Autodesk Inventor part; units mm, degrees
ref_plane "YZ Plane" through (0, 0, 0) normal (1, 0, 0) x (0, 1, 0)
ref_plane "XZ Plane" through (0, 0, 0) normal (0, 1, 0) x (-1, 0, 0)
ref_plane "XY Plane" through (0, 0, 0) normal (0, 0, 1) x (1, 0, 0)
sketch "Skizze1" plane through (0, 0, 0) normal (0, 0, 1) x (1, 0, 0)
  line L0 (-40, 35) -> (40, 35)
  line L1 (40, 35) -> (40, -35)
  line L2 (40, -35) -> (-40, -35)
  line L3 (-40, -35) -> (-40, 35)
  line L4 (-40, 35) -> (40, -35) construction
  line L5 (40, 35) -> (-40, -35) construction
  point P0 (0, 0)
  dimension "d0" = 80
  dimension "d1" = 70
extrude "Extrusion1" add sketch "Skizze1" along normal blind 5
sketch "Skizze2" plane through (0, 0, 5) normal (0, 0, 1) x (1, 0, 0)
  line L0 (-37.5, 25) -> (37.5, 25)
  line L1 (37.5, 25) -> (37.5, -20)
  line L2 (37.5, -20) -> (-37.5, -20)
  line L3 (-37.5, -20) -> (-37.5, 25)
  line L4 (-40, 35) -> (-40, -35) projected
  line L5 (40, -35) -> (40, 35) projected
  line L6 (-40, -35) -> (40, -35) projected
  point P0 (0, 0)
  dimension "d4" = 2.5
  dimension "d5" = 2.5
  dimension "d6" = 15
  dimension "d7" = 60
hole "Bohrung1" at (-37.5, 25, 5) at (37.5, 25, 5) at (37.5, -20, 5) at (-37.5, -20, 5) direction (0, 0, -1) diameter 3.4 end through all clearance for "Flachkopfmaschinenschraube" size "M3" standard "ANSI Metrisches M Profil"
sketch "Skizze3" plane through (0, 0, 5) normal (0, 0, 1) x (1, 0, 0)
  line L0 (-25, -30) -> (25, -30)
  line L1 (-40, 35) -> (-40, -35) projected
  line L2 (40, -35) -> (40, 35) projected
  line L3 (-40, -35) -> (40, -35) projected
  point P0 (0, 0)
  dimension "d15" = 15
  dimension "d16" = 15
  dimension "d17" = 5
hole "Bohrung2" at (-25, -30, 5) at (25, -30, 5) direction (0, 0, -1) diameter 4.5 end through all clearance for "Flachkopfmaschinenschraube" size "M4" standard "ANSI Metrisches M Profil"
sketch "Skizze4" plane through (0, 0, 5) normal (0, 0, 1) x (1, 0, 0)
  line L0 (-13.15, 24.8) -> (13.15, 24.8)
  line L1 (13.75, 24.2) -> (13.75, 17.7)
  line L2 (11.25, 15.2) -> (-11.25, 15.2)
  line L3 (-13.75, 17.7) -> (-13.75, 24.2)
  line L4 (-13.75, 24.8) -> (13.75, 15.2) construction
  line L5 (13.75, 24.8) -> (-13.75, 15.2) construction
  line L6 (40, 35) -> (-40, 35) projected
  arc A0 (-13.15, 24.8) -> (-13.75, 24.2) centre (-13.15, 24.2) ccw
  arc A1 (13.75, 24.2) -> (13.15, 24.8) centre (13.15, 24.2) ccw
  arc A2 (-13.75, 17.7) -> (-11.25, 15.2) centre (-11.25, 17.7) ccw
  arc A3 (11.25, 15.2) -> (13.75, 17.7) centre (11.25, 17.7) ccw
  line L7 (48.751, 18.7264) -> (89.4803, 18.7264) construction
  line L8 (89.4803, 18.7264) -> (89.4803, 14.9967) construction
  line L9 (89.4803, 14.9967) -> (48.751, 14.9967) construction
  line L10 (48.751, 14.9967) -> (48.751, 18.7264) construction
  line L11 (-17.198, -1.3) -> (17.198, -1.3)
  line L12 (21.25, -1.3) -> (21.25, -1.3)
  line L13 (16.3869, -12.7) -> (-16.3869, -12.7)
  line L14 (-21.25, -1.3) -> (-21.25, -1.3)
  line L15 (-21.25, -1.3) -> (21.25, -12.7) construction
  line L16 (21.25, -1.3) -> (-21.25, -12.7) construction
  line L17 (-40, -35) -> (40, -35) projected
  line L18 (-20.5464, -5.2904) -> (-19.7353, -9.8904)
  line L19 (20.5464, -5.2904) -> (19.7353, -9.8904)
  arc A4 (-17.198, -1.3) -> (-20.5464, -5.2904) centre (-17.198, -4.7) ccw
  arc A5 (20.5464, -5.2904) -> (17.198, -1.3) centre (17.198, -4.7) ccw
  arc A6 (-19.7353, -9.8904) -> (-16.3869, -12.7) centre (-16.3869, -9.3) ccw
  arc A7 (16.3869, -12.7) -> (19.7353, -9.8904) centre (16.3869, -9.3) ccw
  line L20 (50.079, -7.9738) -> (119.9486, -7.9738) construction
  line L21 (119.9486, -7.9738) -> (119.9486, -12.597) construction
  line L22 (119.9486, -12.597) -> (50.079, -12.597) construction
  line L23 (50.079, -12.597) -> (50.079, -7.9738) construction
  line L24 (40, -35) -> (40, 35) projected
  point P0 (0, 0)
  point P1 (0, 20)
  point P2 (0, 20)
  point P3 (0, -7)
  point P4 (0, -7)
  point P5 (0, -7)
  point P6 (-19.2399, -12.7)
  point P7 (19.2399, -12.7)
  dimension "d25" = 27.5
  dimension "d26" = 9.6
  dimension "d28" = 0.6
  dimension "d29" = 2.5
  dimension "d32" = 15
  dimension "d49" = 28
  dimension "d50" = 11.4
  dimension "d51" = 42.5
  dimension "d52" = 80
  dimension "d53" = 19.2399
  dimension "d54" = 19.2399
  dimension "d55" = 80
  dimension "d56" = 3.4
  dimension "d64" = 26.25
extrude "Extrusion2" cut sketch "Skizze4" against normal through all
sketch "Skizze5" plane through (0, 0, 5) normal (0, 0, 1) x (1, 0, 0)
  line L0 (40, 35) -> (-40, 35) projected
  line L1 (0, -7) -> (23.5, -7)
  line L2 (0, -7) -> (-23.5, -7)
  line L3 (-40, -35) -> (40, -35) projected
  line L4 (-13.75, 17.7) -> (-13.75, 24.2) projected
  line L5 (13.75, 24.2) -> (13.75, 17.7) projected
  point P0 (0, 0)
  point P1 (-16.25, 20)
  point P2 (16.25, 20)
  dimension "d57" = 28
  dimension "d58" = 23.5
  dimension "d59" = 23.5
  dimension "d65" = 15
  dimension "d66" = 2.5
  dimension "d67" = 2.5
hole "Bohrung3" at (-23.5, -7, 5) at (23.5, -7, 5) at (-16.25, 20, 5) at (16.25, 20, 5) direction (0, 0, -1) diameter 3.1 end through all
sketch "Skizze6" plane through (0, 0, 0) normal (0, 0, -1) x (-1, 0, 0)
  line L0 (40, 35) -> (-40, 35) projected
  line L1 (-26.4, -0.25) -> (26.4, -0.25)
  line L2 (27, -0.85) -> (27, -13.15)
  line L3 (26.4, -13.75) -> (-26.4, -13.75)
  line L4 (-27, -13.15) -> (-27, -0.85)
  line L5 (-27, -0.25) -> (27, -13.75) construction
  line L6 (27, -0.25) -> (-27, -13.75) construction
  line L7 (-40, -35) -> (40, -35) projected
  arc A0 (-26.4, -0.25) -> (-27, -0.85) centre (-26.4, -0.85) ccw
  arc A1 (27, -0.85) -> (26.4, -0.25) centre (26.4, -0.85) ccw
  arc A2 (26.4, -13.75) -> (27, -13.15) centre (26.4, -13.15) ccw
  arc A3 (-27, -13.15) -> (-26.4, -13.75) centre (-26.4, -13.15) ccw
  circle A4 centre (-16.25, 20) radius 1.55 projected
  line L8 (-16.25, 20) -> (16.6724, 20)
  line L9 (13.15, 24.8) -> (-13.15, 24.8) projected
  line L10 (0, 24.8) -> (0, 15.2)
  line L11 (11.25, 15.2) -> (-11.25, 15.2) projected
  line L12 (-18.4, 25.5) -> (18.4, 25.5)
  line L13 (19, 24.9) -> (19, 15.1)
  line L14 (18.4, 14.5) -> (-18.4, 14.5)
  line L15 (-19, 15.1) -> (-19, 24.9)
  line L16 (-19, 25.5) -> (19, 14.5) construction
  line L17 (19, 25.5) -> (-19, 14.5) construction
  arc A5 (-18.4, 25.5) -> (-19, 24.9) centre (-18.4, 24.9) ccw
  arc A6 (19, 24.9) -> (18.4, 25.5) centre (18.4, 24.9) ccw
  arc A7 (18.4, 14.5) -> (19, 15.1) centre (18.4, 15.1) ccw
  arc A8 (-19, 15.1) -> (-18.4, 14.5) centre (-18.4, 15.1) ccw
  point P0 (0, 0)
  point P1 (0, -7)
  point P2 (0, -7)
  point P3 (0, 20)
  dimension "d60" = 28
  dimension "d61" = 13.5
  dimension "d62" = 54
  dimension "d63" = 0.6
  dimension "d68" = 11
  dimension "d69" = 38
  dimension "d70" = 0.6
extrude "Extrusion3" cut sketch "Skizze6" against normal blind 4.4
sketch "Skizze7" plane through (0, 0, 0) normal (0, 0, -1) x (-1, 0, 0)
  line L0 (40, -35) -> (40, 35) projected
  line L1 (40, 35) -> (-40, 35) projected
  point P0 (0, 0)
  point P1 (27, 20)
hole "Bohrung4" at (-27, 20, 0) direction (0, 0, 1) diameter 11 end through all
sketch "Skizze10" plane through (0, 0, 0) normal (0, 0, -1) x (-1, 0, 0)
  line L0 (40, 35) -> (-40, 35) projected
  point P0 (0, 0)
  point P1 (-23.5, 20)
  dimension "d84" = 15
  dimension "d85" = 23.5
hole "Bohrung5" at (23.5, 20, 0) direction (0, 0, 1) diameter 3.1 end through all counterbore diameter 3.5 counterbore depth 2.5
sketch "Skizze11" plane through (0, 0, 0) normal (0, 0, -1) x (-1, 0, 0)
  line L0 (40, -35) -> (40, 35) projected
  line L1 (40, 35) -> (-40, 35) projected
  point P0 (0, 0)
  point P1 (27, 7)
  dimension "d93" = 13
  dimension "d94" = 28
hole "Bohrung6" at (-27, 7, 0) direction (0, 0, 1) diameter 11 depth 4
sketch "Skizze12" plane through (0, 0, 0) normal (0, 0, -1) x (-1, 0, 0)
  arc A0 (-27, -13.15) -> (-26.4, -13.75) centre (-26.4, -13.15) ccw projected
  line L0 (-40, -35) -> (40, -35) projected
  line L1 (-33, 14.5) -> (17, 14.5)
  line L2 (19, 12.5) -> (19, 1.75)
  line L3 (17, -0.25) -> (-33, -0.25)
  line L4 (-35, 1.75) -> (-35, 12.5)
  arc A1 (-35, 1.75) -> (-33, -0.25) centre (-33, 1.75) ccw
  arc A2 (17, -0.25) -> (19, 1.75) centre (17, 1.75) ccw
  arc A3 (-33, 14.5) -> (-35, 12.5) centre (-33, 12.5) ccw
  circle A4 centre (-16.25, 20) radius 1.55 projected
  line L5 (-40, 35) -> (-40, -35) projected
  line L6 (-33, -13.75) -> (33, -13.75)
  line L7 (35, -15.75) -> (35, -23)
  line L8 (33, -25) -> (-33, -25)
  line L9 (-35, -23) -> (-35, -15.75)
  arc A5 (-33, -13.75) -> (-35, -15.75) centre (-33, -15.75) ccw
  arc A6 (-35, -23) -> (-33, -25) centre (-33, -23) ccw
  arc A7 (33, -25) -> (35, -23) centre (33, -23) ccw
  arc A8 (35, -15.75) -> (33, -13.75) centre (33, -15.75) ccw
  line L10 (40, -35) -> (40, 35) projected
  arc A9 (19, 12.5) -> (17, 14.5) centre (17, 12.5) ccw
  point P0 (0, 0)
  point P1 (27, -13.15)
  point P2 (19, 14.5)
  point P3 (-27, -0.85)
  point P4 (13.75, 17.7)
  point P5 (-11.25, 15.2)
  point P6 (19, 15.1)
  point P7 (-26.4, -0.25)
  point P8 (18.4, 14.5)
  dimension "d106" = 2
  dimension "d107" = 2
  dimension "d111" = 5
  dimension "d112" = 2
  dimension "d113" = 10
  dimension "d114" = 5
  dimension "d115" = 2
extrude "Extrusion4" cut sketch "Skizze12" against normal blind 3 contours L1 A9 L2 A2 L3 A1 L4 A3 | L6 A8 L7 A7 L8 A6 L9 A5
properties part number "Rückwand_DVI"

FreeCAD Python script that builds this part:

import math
import FreeCAD as App
import Part
import Sketcher

V = App.Vector
Q = App.Units.Quantity

doc = App.newDocument("Part")
params = doc.addObject("Spreadsheet::Sheet", "Params")
for row, (alias, value) in enumerate([
    ("sketch1_width", "80 mm"),
    ("sketch1_height", "70 mm"),
    ("pad1_length", "5 mm"),
    ("sketch2_diameter", "3.4 mm"),
    ("hole_diameter", "3.4 mm"),
    ("sketch3_diameter", "4.5 mm"),
    ("hole2_diameter", "4.5 mm"),
    ("sketch4_radius", "0.6 mm"),
    ("sketch4_radius2", "2.5 mm"),
    ("sketch4_radius3", "3.4 mm"),
    ("sketch4_width", "26.3 mm"),
    ("sketch5_diameter", "3.1 mm"),
    ("hole3_diameter", "3.1 mm"),
    ("sketch6_radius", "0.6 mm"),
    ("sketch6_diameter", "3.1 mm"),
    ("sketch6_width", "52.8 mm"),
    ("sketch6_width2", "36.8 mm"),
    ("pocket2_length", "4.4 mm"),
    ("sketch7_diameter", "11 mm"),
    ("hole4_diameter", "11 mm"),
    ("sketch8_diameter", "3.1 mm"),
    ("hole5_diameter", "3.1 mm"),
    ("hole5_cbore_diameter", "3.5 mm"),
    ("hole5_cbore_depth", "2.5 mm"),
    ("sketch9_diameter", "11 mm"),
    ("hole6_diameter", "11 mm"),
    ("hole6_depth", "4 mm"),
    ("sketch10_radius", "2 mm"),
    ("sketch10_width", "50 mm"),
    ("sketch10_width2", "66 mm"),
    ("sketch10_height", "10.75 mm"),
    ("sketch10_height2", "7.25 mm"),
    ("pocket3_length", "3 mm"),
], start=1):
    params.set(f"A{row}", alias)
    params.set(f"B{row}", "=" + value)
    params.setAlias(f"B{row}", alias)

body = doc.addObject("PartDesign::Body", "Body")

sketch1 = body.newObject("Sketcher::SketchObject", "Sketch")
sketch1.AttachmentSupport = (doc.getObject("XY_Plane"), [""])
sketch1.MapMode = "FlatFace"
sketch1.addGeometry(Part.LineSegment(V(40, 35, 0), V(-40, 35, 0)), False)
sketch1.addGeometry(Part.LineSegment(V(-40, 35, 0), V(-40, -35, 0)), False)
sketch1.addGeometry(Part.LineSegment(V(-40, -35, 0), V(40, -35, 0)), False)
sketch1.addGeometry(Part.LineSegment(V(40, -35, 0), V(40, 35, 0)), False)
sketch1.addConstraint(Sketcher.Constraint("Coincident", 0, 2, 1, 1))
sketch1.addConstraint(Sketcher.Constraint("Coincident", 1, 2, 2, 1))
sketch1.addConstraint(Sketcher.Constraint("Coincident", 2, 2, 3, 1))
sketch1.addConstraint(Sketcher.Constraint("Coincident", 3, 2, 0, 1))
sketch1.addConstraint(Sketcher.Constraint("Horizontal", 0))
sketch1.addConstraint(Sketcher.Constraint("Vertical", 1))
sketch1.addConstraint(Sketcher.Constraint("Horizontal", 2))
sketch1.addConstraint(Sketcher.Constraint("Vertical", 3))
sketch1.addConstraint(Sketcher.Constraint("Symmetric", 0, 2, 2, 2, -1, 1))
sketch1.addConstraint(Sketcher.Constraint("DistanceX", 0, 2, 0, 1, Q("80 mm")))
sketch1.addConstraint(Sketcher.Constraint("DistanceY", 1, 2, 1, 1, Q("70 mm")))
sketch1.setExpression("Constraints[9]", "Params.sketch1_width")
sketch1.setExpression("Constraints[10]", "Params.sketch1_height")
pad1 = body.newObject("PartDesign::Pad", "Pad")
pad1.Profile = sketch1
pad1.setExpression("Length", "Params.pad1_length")

sketch2 = body.newObject("Sketcher::SketchObject", "Sketch001")
sketch2.AttachmentSupport = (doc.getObject("XY_Plane"), [""])
sketch2.MapMode = "FlatFace"
sketch2.AttachmentOffset = App.Placement(V(0, 0, 5), App.Rotation())
sketch2.addGeometry(Part.Circle(V(-37.5, 25, 0), V(0, 0, 1), 1.7), False)
sketch2.addGeometry(Part.Circle(V(37.5, 25, 0), V(0, 0, 1), 1.7), False)
sketch2.addGeometry(Part.Circle(V(37.5, -20, 0), V(0, 0, 1), 1.7), False)
sketch2.addGeometry(Part.Circle(V(-37.5, -20, 0), V(0, 0, 1), 1.7), False)
sketch2.addConstraint(Sketcher.Constraint("Equal", 0, 1))
sketch2.addConstraint(Sketcher.Constraint("Equal", 1, 2))
sketch2.addConstraint(Sketcher.Constraint("Equal", 2, 3))
sketch2.addConstraint(Sketcher.Constraint("Symmetric", 0, 3, 1, 3, -2))
sketch2.addConstraint(Sketcher.Constraint("Symmetric", 2, 3, 3, 3, -2))
sketch2.addConstraint(Sketcher.Constraint("Vertical", 1, 3, 2, 3))
sketch2.addConstraint(Sketcher.Constraint("Diameter", 0, Q("3.4 mm")))
sketch2.addConstraint(Sketcher.Constraint("DistanceY", -1, 1, 0, 3, Q("25 mm")))
sketch2.addConstraint(Sketcher.Constraint("DistanceY", 2, 3, -1, 1, Q("20 mm")))
sketch2.addConstraint(Sketcher.Constraint("DistanceX", 0, 3, 1, 3, Q("75 mm")))
sketch2.setExpression("Constraints[6]", "Params.sketch2_diameter")
doc.recompute()
hole = body.newObject("PartDesign::Hole", "Hole")
hole.Profile = sketch2
hole.ThreadType = "None"
hole.setExpression("Diameter", "Params.hole_diameter")
hole.DepthType = "ThroughAll"

sketch3 = body.newObject("Sketcher::SketchObject", "Sketch002")
sketch3.AttachmentSupport = (doc.getObject("XY_Plane"), [""])
sketch3.MapMode = "FlatFace"
sketch3.AttachmentOffset = App.Placement(V(0, 0, 5), App.Rotation())
sketch3.addGeometry(Part.Circle(V(-25, -30, 0), V(0, 0, 1), 2.2), False)
sketch3.addGeometry(Part.Circle(V(25, -30, 0), V(0, 0, 1), 2.2), False)
sketch3.addConstraint(Sketcher.Constraint("Equal", 0, 1))
sketch3.addConstraint(Sketcher.Constraint("Symmetric", 0, 3, 1, 3, -2))
sketch3.addConstraint(Sketcher.Constraint("Diameter", 0, Q("4.5 mm")))
sketch3.addConstraint(Sketcher.Constraint("DistanceX", 0, 3, -1, 1, Q("25 mm")))
sketch3.addConstraint(Sketcher.Constraint("DistanceY", 0, 3, -1, 1, Q("30 mm")))
sketch3.setExpression("Constraints[2]", "Params.sketch3_diameter")
doc.recompute()
hole2 = body.newObject("PartDesign::Hole", "Hole001")
hole2.Profile = sketch3
hole2.ThreadType = "None"
hole2.setExpression("Diameter", "Params.hole2_diameter")
hole2.DepthType = "ThroughAll"

sketch4 = body.newObject("Sketcher::SketchObject", "Sketch003")
sketch4.AttachmentSupport = (doc.getObject("XY_Plane"), [""])
sketch4.MapMode = "FlatFace"
sketch4.AttachmentOffset = App.Placement(V(0, 0, 5), App.Rotation())
sketch4.addGeometry(Part.LineSegment(V(13.2, 24.8, 0), V(-13.2, 24.8, 0)), False)
sketch4.addGeometry(Part.ArcOfCircle(Part.Circle(V(-13.2, 24.2, 0), V(0, 0, 1), 0.6), math.radians(90), math.radians(180)), False)
sketch4.addGeometry(Part.LineSegment(V(-13.8, 24.2, 0), V(-13.8, 17.7, 0)), False)
sketch4.addGeometry(Part.ArcOfCircle(Part.Circle(V(-11.2, 17.7, 0), V(0, 0, 1), 2.5), math.radians(180), math.radians(270)), False)
sketch4.addGeometry(Part.LineSegment(V(-11.2, 15.2, 0), V(11.2, 15.2, 0)), False)
sketch4.addGeometry(Part.ArcOfCircle(Part.Circle(V(11.2, 17.7, 0), V(0, 0, 1), 2.5), math.radians(-90), math.radians(0)), False)
sketch4.addGeometry(Part.LineSegment(V(13.8, 17.7, 0), V(13.8, 24.2, 0)), False)
sketch4.addGeometry(Part.ArcOfCircle(Part.Circle(V(13.2, 24.2, 0), V(0, 0, 1), 0.6), math.radians(0), math.radians(90)), False)
sketch4.addGeometry(Part.LineSegment(V(17.2, -1.3, 0), V(-17.2, -1.3, 0)), False)
sketch4.addGeometry(Part.ArcOfCircle(Part.Circle(V(-17.2, -4.7, 0), V(0, 0, 1), 3.4), math.radians(90), math.radians(190)), False)
sketch4.addGeometry(Part.LineSegment(V(-20.5, -5.3, 0), V(-19.7, -9.9, 0)), False)
sketch4.addGeometry(Part.ArcOfCircle(Part.Circle(V(-16.4, -9.3, 0), V(0, 0, 1), 3.4), math.radians(-170), math.radians(-90)), False)
sketch4.addGeometry(Part.LineSegment(V(-16.4, -12.7, 0), V(16.4, -12.7, 0)), False)
sketch4.addGeometry(Part.ArcOfCircle(Part.Circle(V(16.4, -9.3, 0), V(0, 0, 1), 3.4), math.radians(-90), math.radians(-10)), False)
sketch4.addGeometry(Part.LineSegment(V(19.7, -9.9, 0), V(20.5, -5.3, 0)), False)
sketch4.addGeometry(Part.ArcOfCircle(Part.Circle(V(17.2, -4.7, 0), V(0, 0, 1), 3.4), math.radians(-10), math.radians(90)), False)
sketch4.addConstraint(Sketcher.Constraint("Tangent", 0, 2, 1, 1))
sketch4.addConstraint(Sketcher.Constraint("Tangent", 1, 2, 2, 1))
sketch4.addConstraint(Sketcher.Constraint("Tangent", 2, 2, 3, 1))
sketch4.addConstraint(Sketcher.Constraint("Tangent", 3, 2, 4, 1))
sketch4.addConstraint(Sketcher.Constraint("Tangent", 4, 2, 5, 1))
sketch4.addConstraint(Sketcher.Constraint("Tangent", 5, 2, 6, 1))
sketch4.addConstraint(Sketcher.Constraint("Tangent", 6, 2, 7, 1))
sketch4.addConstraint(Sketcher.Constraint("Tangent", 7, 2, 0, 1))
sketch4.addConstraint(Sketcher.Constraint("Tangent", 8, 2, 9, 1))
sketch4.addConstraint(Sketcher.Constraint("Tangent", 9, 2, 10, 1))
sketch4.addConstraint(Sketcher.Constraint("Tangent", 10, 2, 11, 1))
sketch4.addConstraint(Sketcher.Constraint("Tangent", 11, 2, 12, 1))
sketch4.addConstraint(Sketcher.Constraint("Tangent", 12, 2, 13, 1))
sketch4.addConstraint(Sketcher.Constraint("Tangent", 13, 2, 14, 1))
sketch4.addConstraint(Sketcher.Constraint("Tangent", 14, 2, 15, 1))
sketch4.addConstraint(Sketcher.Constraint("Tangent", 15, 2, 8, 1))
sketch4.addConstraint(Sketcher.Constraint("Horizontal", 0))
sketch4.addConstraint(Sketcher.Constraint("Vertical", 2))
sketch4.addConstraint(Sketcher.Constraint("Horizontal", 4))
sketch4.addConstraint(Sketcher.Constraint("Vertical", 6))
sketch4.addConstraint(Sketcher.Constraint("Horizontal", 8))
sketch4.addConstraint(Sketcher.Constraint("Horizontal", 12))
sketch4.addConstraint(Sketcher.Constraint("Equal", 3, 5))
sketch4.addConstraint(Sketcher.Constraint("Equal", 1, 7))
sketch4.addConstraint(Sketcher.Constraint("Equal", 9, 11))
sketch4.addConstraint(Sketcher.Constraint("Equal", 11, 13))
sketch4.addConstraint(Sketcher.Constraint("Equal", 13, 15))
sketch4.addConstraint(Sketcher.Constraint("Symmetric", 10, 2, 13, 2, -2))
sketch4.addConstraint(Sketcher.Constraint("Radius", 1, Q("0.6 mm")))
sketch4.addConstraint(Sketcher.Constraint("Radius", 3, Q("2.5 mm")))
sketch4.addConstraint(Sketcher.Constraint("Radius", 9, Q("3.4 mm")))
sketch4.addConstraint(Sketcher.Constraint("Angle", 10, Q("-80 deg")))
sketch4.addConstraint(Sketcher.Constraint("DistanceY", 3, 2, 0, 2, Q("9.6 mm")))
sketch4.addConstraint(Sketcher.Constraint("DistanceY", 11, 2, 8, 2, Q("11.4 mm")))
sketch4.addConstraint(Sketcher.Constraint("DistanceX", 0, 2, 0, 1, Q("26.3 mm")))
sketch4.addConstraint(Sketcher.Constraint("DistanceY", 11, 3, 3, 3, Q("27 mm")))
sketch4.addConstraint(Sketcher.Constraint("DistanceY", -1, 1, 1, 3, Q("24.2 mm")))
sketch4.addConstraint(Sketcher.Constraint("DistanceX", 8, 2, 8, 1, Q("34.396 mm")))
sketch4.addConstraint(Sketcher.Constraint("DistanceX", 1, 3, -1, 1, Q("13.15 mm")))
sketch4.setExpression("Constraints[28]", "Params.sketch4_radius")
sketch4.setExpression("Constraints[29]", "Params.sketch4_radius2")
sketch4.setExpression("Constraints[30]", "Params.sketch4_radius3")
sketch4.setExpression("Constraints[34]", "Params.sketch4_width")
pocket1 = body.newObject("PartDesign::Pocket", "Pocket")
pocket1.Profile = sketch4
pocket1.Type = "ThroughAll"

sketch5 = body.newObject("Sketcher::SketchObject", "Sketch004")
sketch5.AttachmentSupport = (doc.getObject("XY_Plane"), [""])
sketch5.MapMode = "FlatFace"
sketch5.AttachmentOffset = App.Placement(V(0, 0, 5), App.Rotation())
sketch5.addGeometry(Part.Circle(V(-23.5, -7, 0), V(0, 0, 1), 1.6), False)
sketch5.addGeometry(Part.Circle(V(23.5, -7, 0), V(0, 0, 1), 1.6), False)
sketch5.addGeometry(Part.Circle(V(-16.2, 20, 0), V(0, 0, 1), 1.6), False)
sketch5.addGeometry(Part.Circle(V(16.2, 20, 0), V(0, 0, 1), 1.6), False)
sketch5.addConstraint(Sketcher.Constraint("Equal", 0, 1))
sketch5.addConstraint(Sketcher.Constraint("Equal", 1, 2))
sketch5.addConstraint(Sketcher.Constraint("Equal", 2, 3))
sketch5.addConstraint(Sketcher.Constraint("Symmetric", 0, 3, 1, 3, -2))
sketch5.addConstraint(Sketcher.Constraint("Symmetric", 2, 3, 3, 3, -2))
sketch5.addConstraint(Sketcher.Constraint("Diameter", 0, Q("3.1 mm")))
sketch5.addConstraint(Sketcher.Constraint("DistanceY", 0, 3, -1, 1, Q("7 mm")))
sketch5.addConstraint(Sketcher.Constraint("DistanceY", -1, 1, 2, 3, Q("20 mm")))
sketch5.addConstraint(Sketcher.Constraint("DistanceX", 0, 3, 1, 3, Q("47 mm")))
sketch5.addConstraint(Sketcher.Constraint("DistanceX", 2, 3, 3, 3, Q("32.5 mm")))
sketch5.setExpression("Constraints[5]", "Params.sketch5_diameter")
doc.recompute()
hole3 = body.newObject("PartDesign::Hole", "Hole002")
hole3.Profile = sketch5
hole3.ThreadType = "None"
hole3.setExpression("Diameter", "Params.hole3_diameter")
hole3.DepthType = "ThroughAll"

sketch6 = body.newObject("Sketcher::SketchObject", "Sketch005")
sketch6.AttachmentSupport = (doc.getObject("XY_Plane"), [""])
sketch6.MapMode = "FlatFace"
sketch6.addGeometry(Part.LineSegment(V(-26.4, -0.2, 0), V(26.4, -0.2, 0)), False)
sketch6.addGeometry(Part.ArcOfCircle(Part.Circle(V(26.4, -0.8, 0), V(0, 0, 1), 0.6), math.radians(0), math.radians(90)), False)
sketch6.addGeometry(Part.LineSegment(V(27, -0.8, 0), V(27, -13.2, 0)), False)
sketch6.addGeometry(Part.ArcOfCircle(Part.Circle(V(26.4, -13.2, 0), V(0, 0, 1), 0.6), math.radians(-90), math.radians(0)), False)
sketch6.addGeometry(Part.LineSegment(V(26.4, -13.8, 0), V(-26.4, -13.8, 0)), False)
sketch6.addGeometry(Part.ArcOfCircle(Part.Circle(V(-26.4, -13.2, 0), V(0, 0, 1), 0.6), math.radians(180), math.radians(270)), False)
sketch6.addGeometry(Part.LineSegment(V(-27, -13.2, 0), V(-27, -0.8, 0)), False)
sketch6.addGeometry(Part.ArcOfCircle(Part.Circle(V(-26.4, -0.8, 0), V(0, 0, 1), 0.6), math.radians(90), math.radians(180)), False)
sketch6.addGeometry(Part.LineSegment(V(-18.4, 25.5, 0), V(18.4, 25.5, 0)), False)
sketch6.addGeometry(Part.ArcOfCircle(Part.Circle(V(18.4, 24.9, 0), V(0, 0, 1), 0.6), math.radians(0), math.radians(90)), False)
sketch6.addGeometry(Part.LineSegment(V(19, 24.9, 0), V(19, 15.1, 0)), False)
sketch6.addGeometry(Part.ArcOfCircle(Part.Circle(V(18.4, 15.1, 0), V(0, 0, 1), 0.6), math.radians(-90), math.radians(0)), False)
sketch6.addGeometry(Part.LineSegment(V(18.4, 14.5, 0), V(-18.4, 14.5, 0)), False)
sketch6.addGeometry(Part.ArcOfCircle(Part.Circle(V(-18.4, 15.1, 0), V(0, 0, 1), 0.6), math.radians(180), math.radians(270)), False)
sketch6.addGeometry(Part.LineSegment(V(-19, 15.1, 0), V(-19, 24.9, 0)), False)
sketch6.addGeometry(Part.ArcOfCircle(Part.Circle(V(-18.4, 24.9, 0), V(0, 0, 1), 0.6), math.radians(90), math.radians(180)), False)
sketch6.addGeometry(Part.Circle(V(16.2, 20, 0), V(0, 0, 1), 1.6), False)
sketch6.addConstraint(Sketcher.Constraint("Tangent", 0, 2, 1, 2))
sketch6.addConstraint(Sketcher.Constraint("Tangent", 1, 1, 2, 1))
sketch6.addConstraint(Sketcher.Constraint("Tangent", 2, 2, 3, 2))
sketch6.addConstraint(Sketcher.Constraint("Tangent", 3, 1, 4, 1))
sketch6.addConstraint(Sketcher.Constraint("Tangent", 4, 2, 5, 2))
sketch6.addConstraint(Sketcher.Constraint("Tangent", 5, 1, 6, 1))
sketch6.addConstraint(Sketcher.Constraint("Tangent", 6, 2, 7, 2))
sketch6.addConstraint(Sketcher.Constraint("Tangent", 7, 1, 0, 1))
sketch6.addConstraint(Sketcher.Constraint("Tangent", 8, 2, 9, 2))
sketch6.addConstraint(Sketcher.Constraint("Tangent", 9, 1, 10, 1))
sketch6.addConstraint(Sketcher.Constraint("Tangent", 10, 2, 11, 2))
sketch6.addConstraint(Sketcher.Constraint("Tangent", 11, 1, 12, 1))
sketch6.addConstraint(Sketcher.Constraint("Tangent", 12, 2, 13, 2))
sketch6.addConstraint(Sketcher.Constraint("Tangent", 13, 1, 14, 1))
sketch6.addConstraint(Sketcher.Constraint("Tangent", 14, 2, 15, 2))
sketch6.addConstraint(Sketcher.Constraint("Tangent", 15, 1, 8, 1))
sketch6.addConstraint(Sketcher.Constraint("Horizontal", 0))
sketch6.addConstraint(Sketcher.Constraint("Vertical", 2))
sketch6.addConstraint(Sketcher.Constraint("Horizontal", 4))
sketch6.addConstraint(Sketcher.Constraint("Vertical", 6))
sketch6.addConstraint(Sketcher.Constraint("Horizontal", 8))
sketch6.addConstraint(Sketcher.Constraint("Vertical", 10))
sketch6.addConstraint(Sketcher.Constraint("Horizontal", 12))
sketch6.addConstraint(Sketcher.Constraint("Vertical", 14))
sketch6.addConstraint(Sketcher.Constraint("Equal", 1, 3))
sketch6.addConstraint(Sketcher.Constraint("Equal", 3, 5))
sketch6.addConstraint(Sketcher.Constraint("Equal", 5, 7))
sketch6.addConstraint(Sketcher.Constraint("Equal", 7, 9))
sketch6.addConstraint(Sketcher.Constraint("Equal", 9, 11))
sketch6.addConstraint(Sketcher.Constraint("Equal", 11, 13))
sketch6.addConstraint(Sketcher.Constraint("Equal", 13, 15))
sketch6.addConstraint(Sketcher.Constraint("Radius", 1, Q("0.6 mm")))
sketch6.addConstraint(Sketcher.Constraint("DistanceY", 12, 2, 15, 1, Q("11 mm")))
sketch6.addConstraint(Sketcher.Constraint("Diameter", 16, Q("3.1 mm")))
sketch6.addConstraint(Sketcher.Constraint("DistanceY", 3, 1, 0, 2, Q("13.5 mm")))
sketch6.addConstraint(Sketcher.Constraint("DistanceX", 0, 1, 0, 2, Q("52.8 mm")))
sketch6.addConstraint(Sketcher.Constraint("DistanceX", 8, 1, 8, 2, Q("36.8 mm")))
sketch6.addConstraint(Sketcher.Constraint("DistanceY", -1, 1, 16, 3, Q("20 mm")))
sketch6.addConstraint(Sketcher.Constraint("DistanceX", -1, 1, 1, 1, Q("27 mm")))
sketch6.addConstraint(Sketcher.Constraint("DistanceX", -1, 1, 9, 1, Q("19 mm")))
sketch6.addConstraint(Sketcher.Constraint("DistanceY", -1, 1, 9, 3, Q("24.9 mm")))
sketch6.addConstraint(Sketcher.Constraint("DistanceY", 1, 3, -1, 1, Q("0.85 mm")))
sketch6.addConstraint(Sketcher.Constraint("DistanceX", -1, 1, 16, 3, Q("16.25 mm")))
sketch6.setExpression("Constraints[31]", "Params.sketch6_radius")
sketch6.setExpression("Constraints[33]", "Params.sketch6_diameter")
sketch6.setExpression("Constraints[35]", "Params.sketch6_width")
sketch6.setExpression("Constraints[36]", "Params.sketch6_width2")
pocket2 = body.newObject("PartDesign::Pocket", "Pocket001")
pocket2.Profile = sketch6
pocket2.setExpression("Length", "Params.pocket2_length")
pocket2.Reversed = True

sketch7 = body.newObject("Sketcher::SketchObject", "Sketch006")
sketch7.AttachmentSupport = (doc.getObject("XY_Plane"), [""])
sketch7.MapMode = "FlatFace"
sketch7.addGeometry(Part.Circle(V(-27, 20, 0), V(0, 0, 1), 6), False)
sketch7.addConstraint(Sketcher.Constraint("Diameter", 0, Q("11 mm")))
sketch7.addConstraint(Sketcher.Constraint("DistanceX", 0, 3, -1, 1, Q("27 mm")))
sketch7.addConstraint(Sketcher.Constraint("DistanceY", -1, 1, 0, 3, Q("20 mm")))
sketch7.setExpression("Constraints[0]", "Params.sketch7_diameter")
doc.recompute()
hole4 = body.newObject("PartDesign::Hole", "Hole003")
hole4.Profile = sketch7
hole4.ThreadType = "None"
hole4.setExpression("Diameter", "Params.hole4_diameter")
hole4.DepthType = "ThroughAll"
hole4.Reversed = True

sketch8 = body.newObject("Sketcher::SketchObject", "Sketch007")
sketch8.AttachmentSupport = (doc.getObject("XY_Plane"), [""])
sketch8.MapMode = "FlatFace"
sketch8.addGeometry(Part.Circle(V(23.5, 20, 0), V(0, 0, 1), 1.6), False)
sketch8.addConstraint(Sketcher.Constraint("Diameter", 0, Q("3.1 mm")))
sketch8.addConstraint(Sketcher.Constraint("DistanceY", -1, 1, 0, 3, Q("20 mm")))
sketch8.addConstraint(Sketcher.Constraint("DistanceX", -1, 1, 0, 3, Q("23.5 mm")))
sketch8.setExpression("Constraints[0]", "Params.sketch8_diameter")
doc.recompute()
hole5 = body.newObject("PartDesign::Hole", "Hole004")
hole5.Profile = sketch8
hole5.ThreadType = "None"
hole5.setExpression("Diameter", "Params.hole5_diameter")
hole5.DepthType = "ThroughAll"
hole5.HoleCutType = "Counterbore"
hole5.setExpression("HoleCutDiameter", "Params.hole5_cbore_diameter")
hole5.setExpression("HoleCutDepth", "Params.hole5_cbore_depth")
hole5.Reversed = True

sketch9 = body.newObject("Sketcher::SketchObject", "Sketch008")
sketch9.AttachmentSupport = (doc.getObject("XY_Plane"), [""])
sketch9.MapMode = "FlatFace"
sketch9.addGeometry(Part.Circle(V(-27, 7, 0), V(0, 0, 1), 6), False)
sketch9.addConstraint(Sketcher.Constraint("Diameter", 0, Q("11 mm")))
sketch9.addConstraint(Sketcher.Constraint("DistanceX", 0, 3, -1, 1, Q("27 mm")))
sketch9.addConstraint(Sketcher.Constraint("DistanceY", -1, 1, 0, 3, Q("7 mm")))
sketch9.setExpression("Constraints[0]", "Params.sketch9_diameter")
doc.recompute()
hole6 = body.newObject("PartDesign::Hole", "Hole005")
hole6.Profile = sketch9
hole6.ThreadType = "None"
hole6.setExpression("Diameter", "Params.hole6_diameter")
hole6.DepthType = "Dimension"
hole6.setExpression("Depth", "Params.hole6_depth")
hole6.DrillPoint = "Flat"
hole6.Reversed = True

sketch10 = body.newObject("Sketcher::SketchObject", "Sketch009")
sketch10.AttachmentSupport = (doc.getObject("XY_Plane"), [""])
sketch10.MapMode = "FlatFace"
sketch10.addGeometry(Part.LineSegment(V(-17, 14.5, 0), V(33, 14.5, 0)), False)
sketch10.addGeometry(Part.ArcOfCircle(Part.Circle(V(33, 12.5, 0), V(0, 0, 1), 2), math.radians(0), math.radians(90)), False)
sketch10.addGeometry(Part.LineSegment(V(35, 12.5, 0), V(35, 1.8, 0)), False)
sketch10.addGeometry(Part.ArcOfCircle(Part.Circle(V(33, 1.8, 0), V(0, 0, 1), 2), math.radians(-90), math.radians(0)), False)
sketch10.addGeometry(Part.LineSegment(V(33, -0.2, 0), V(-17, -0.2, 0)), False)
sketch10.addGeometry(Part.ArcOfCircle(Part.Circle(V(-17, 1.8, 0), V(0, 0, 1), 2), math.radians(180), math.radians(270)), False)
sketch10.addGeometry(Part.LineSegment(V(-19, 1.8, 0), V(-19, 12.5, 0)), False)
sketch10.addGeometry(Part.ArcOfCircle(Part.Circle(V(-17, 12.5, 0), V(0, 0, 1), 2), math.radians(90), math.radians(180)), False)
sketch10.addGeometry(Part.LineSegment(V(-33, -13.8, 0), V(33, -13.8, 0)), False)
sketch10.addGeometry(Part.ArcOfCircle(Part.Circle(V(33, -15.8, 0), V(0, 0, 1), 2), math.radians(0), math.radians(90)), False)
sketch10.addGeometry(Part.LineSegment(V(35, -15.8, 0), V(35, -23, 0)), False)
sketch10.addGeometry(Part.ArcOfCircle(Part.Circle(V(33, -23, 0), V(0, 0, 1), 2), math.radians(-90), math.radians(0)), False)
sketch10.addGeometry(Part.LineSegment(V(33, -25, 0), V(-33, -25, 0)), False)
sketch10.addGeometry(Part.ArcOfCircle(Part.Circle(V(-33, -23, 0), V(0, 0, 1), 2), math.radians(180), math.radians(270)), False)
sketch10.addGeometry(Part.LineSegment(V(-35, -23, 0), V(-35, -15.8, 0)), False)
sketch10.addGeometry(Part.ArcOfCircle(Part.Circle(V(-33, -15.8, 0), V(0, 0, 1), 2), math.radians(90), math.radians(180)), False)
sketch10.addConstraint(Sketcher.Constraint("Tangent", 0, 2, 1, 2))
sketch10.addConstraint(Sketcher.Constraint("Tangent", 1, 1, 2, 1))
sketch10.addConstraint(Sketcher.Constraint("Tangent", 2, 2, 3, 2))
sketch10.addConstraint(Sketcher.Constraint("Tangent", 3, 1, 4, 1))
sketch10.addConstraint(Sketcher.Constraint("Tangent", 4, 2, 5, 2))
sketch10.addConstraint(Sketcher.Constraint("Tangent", 5, 1, 6, 1))
sketch10.addConstraint(Sketcher.Constraint("Tangent", 6, 2, 7, 2))
sketch10.addConstraint(Sketcher.Constraint("Tangent", 7, 1, 0, 1))
sketch10.addConstraint(Sketcher.Constraint("Tangent", 8, 2, 9, 2))
sketch10.addConstraint(Sketcher.Constraint("Tangent", 9, 1, 10, 1))
sketch10.addConstraint(Sketcher.Constraint("Tangent", 10, 2, 11, 2))
sketch10.addConstraint(Sketcher.Constraint("Tangent", 11, 1, 12, 1))
sketch10.addConstraint(Sketcher.Constraint("Tangent", 12, 2, 13, 2))
sketch10.addConstraint(Sketcher.Constraint("Tangent", 13, 1, 14, 1))
sketch10.addConstraint(Sketcher.Constraint("Tangent", 14, 2, 15, 2))
sketch10.addConstraint(Sketcher.Constraint("Tangent", 15, 1, 8, 1))
sketch10.addConstraint(Sketcher.Constraint("Horizontal", 0))
sketch10.addConstraint(Sketcher.Constraint("Vertical", 2))
sketch10.addConstraint(Sketcher.Constraint("Horizontal", 4))
sketch10.addConstraint(Sketcher.Constraint("Vertical", 6))
sketch10.addConstraint(Sketcher.Constraint("Horizontal", 8))
sketch10.addConstraint(Sketcher.Constraint("Vertical", 10))
sketch10.addConstraint(Sketcher.Constraint("Horizontal", 12))
sketch10.addConstraint(Sketcher.Constraint("Vertical", 14))
sketch10.addConstraint(Sketcher.Constraint("Equal", 1, 3))
sketch10.addConstraint(Sketcher.Constraint("Equal", 3, 5))
sketch10.addConstraint(Sketcher.Constraint("Equal", 5, 7))
sketch10.addConstraint(Sketcher.Constraint("Equal", 7, 9))
sketch10.addConstraint(Sketcher.Constraint("Equal", 9, 11))
sketch10.addConstraint(Sketcher.Constraint("Equal", 11, 13))
sketch10.addConstraint(Sketcher.Constraint("Equal", 13, 15))
sketch10.addConstraint(Sketcher.Constraint("Vertical", 3, 3, 9, 3))
sketch10.addConstraint(Sketcher.Constraint("Radius", 1, Q("2 mm")))
sketch10.addConstraint(Sketcher.Constraint("DistanceX", 0, 1, 0, 2, Q("50 mm")))
sketch10.addConstraint(Sketcher.Constraint("DistanceX", 8, 1, 8, 2, Q("66 mm")))
sketch10.addConstraint(Sketcher.Constraint("DistanceX", -1, 1, 1, 3, Q("33 mm")))
sketch10.addConstraint(Sketcher.Constraint("DistanceY", 11, 3, -1, 1, Q("23 mm")))
sketch10.addConstraint(Sketcher.Constraint("DistanceY", 2, 2, 2, 1, Q("10.75 mm")))
sketch10.addConstraint(Sketcher.Constraint("DistanceY", 10, 2, 10, 1, Q("7.25 mm")))
sketch10.addConstraint(Sketcher.Constraint("DistanceY", -1, 1, 1, 3, Q("12.5 mm")))
sketch10.setExpression("Constraints[32]", "Params.sketch10_radius")
sketch10.setExpression("Constraints[33]", "Params.sketch10_width")
sketch10.setExpression("Constraints[34]", "Params.sketch10_width2")
sketch10.setExpression("Constraints[37]", "Params.sketch10_height")
sketch10.setExpression("Constraints[38]", "Params.sketch10_height2")
pocket3 = body.newObject("PartDesign::Pocket", "Pocket002")
pocket3.Profile = sketch10
pocket3.setExpression("Length", "Params.pocket3_length")
pocket3.Reversed = True

doc.recompute()
